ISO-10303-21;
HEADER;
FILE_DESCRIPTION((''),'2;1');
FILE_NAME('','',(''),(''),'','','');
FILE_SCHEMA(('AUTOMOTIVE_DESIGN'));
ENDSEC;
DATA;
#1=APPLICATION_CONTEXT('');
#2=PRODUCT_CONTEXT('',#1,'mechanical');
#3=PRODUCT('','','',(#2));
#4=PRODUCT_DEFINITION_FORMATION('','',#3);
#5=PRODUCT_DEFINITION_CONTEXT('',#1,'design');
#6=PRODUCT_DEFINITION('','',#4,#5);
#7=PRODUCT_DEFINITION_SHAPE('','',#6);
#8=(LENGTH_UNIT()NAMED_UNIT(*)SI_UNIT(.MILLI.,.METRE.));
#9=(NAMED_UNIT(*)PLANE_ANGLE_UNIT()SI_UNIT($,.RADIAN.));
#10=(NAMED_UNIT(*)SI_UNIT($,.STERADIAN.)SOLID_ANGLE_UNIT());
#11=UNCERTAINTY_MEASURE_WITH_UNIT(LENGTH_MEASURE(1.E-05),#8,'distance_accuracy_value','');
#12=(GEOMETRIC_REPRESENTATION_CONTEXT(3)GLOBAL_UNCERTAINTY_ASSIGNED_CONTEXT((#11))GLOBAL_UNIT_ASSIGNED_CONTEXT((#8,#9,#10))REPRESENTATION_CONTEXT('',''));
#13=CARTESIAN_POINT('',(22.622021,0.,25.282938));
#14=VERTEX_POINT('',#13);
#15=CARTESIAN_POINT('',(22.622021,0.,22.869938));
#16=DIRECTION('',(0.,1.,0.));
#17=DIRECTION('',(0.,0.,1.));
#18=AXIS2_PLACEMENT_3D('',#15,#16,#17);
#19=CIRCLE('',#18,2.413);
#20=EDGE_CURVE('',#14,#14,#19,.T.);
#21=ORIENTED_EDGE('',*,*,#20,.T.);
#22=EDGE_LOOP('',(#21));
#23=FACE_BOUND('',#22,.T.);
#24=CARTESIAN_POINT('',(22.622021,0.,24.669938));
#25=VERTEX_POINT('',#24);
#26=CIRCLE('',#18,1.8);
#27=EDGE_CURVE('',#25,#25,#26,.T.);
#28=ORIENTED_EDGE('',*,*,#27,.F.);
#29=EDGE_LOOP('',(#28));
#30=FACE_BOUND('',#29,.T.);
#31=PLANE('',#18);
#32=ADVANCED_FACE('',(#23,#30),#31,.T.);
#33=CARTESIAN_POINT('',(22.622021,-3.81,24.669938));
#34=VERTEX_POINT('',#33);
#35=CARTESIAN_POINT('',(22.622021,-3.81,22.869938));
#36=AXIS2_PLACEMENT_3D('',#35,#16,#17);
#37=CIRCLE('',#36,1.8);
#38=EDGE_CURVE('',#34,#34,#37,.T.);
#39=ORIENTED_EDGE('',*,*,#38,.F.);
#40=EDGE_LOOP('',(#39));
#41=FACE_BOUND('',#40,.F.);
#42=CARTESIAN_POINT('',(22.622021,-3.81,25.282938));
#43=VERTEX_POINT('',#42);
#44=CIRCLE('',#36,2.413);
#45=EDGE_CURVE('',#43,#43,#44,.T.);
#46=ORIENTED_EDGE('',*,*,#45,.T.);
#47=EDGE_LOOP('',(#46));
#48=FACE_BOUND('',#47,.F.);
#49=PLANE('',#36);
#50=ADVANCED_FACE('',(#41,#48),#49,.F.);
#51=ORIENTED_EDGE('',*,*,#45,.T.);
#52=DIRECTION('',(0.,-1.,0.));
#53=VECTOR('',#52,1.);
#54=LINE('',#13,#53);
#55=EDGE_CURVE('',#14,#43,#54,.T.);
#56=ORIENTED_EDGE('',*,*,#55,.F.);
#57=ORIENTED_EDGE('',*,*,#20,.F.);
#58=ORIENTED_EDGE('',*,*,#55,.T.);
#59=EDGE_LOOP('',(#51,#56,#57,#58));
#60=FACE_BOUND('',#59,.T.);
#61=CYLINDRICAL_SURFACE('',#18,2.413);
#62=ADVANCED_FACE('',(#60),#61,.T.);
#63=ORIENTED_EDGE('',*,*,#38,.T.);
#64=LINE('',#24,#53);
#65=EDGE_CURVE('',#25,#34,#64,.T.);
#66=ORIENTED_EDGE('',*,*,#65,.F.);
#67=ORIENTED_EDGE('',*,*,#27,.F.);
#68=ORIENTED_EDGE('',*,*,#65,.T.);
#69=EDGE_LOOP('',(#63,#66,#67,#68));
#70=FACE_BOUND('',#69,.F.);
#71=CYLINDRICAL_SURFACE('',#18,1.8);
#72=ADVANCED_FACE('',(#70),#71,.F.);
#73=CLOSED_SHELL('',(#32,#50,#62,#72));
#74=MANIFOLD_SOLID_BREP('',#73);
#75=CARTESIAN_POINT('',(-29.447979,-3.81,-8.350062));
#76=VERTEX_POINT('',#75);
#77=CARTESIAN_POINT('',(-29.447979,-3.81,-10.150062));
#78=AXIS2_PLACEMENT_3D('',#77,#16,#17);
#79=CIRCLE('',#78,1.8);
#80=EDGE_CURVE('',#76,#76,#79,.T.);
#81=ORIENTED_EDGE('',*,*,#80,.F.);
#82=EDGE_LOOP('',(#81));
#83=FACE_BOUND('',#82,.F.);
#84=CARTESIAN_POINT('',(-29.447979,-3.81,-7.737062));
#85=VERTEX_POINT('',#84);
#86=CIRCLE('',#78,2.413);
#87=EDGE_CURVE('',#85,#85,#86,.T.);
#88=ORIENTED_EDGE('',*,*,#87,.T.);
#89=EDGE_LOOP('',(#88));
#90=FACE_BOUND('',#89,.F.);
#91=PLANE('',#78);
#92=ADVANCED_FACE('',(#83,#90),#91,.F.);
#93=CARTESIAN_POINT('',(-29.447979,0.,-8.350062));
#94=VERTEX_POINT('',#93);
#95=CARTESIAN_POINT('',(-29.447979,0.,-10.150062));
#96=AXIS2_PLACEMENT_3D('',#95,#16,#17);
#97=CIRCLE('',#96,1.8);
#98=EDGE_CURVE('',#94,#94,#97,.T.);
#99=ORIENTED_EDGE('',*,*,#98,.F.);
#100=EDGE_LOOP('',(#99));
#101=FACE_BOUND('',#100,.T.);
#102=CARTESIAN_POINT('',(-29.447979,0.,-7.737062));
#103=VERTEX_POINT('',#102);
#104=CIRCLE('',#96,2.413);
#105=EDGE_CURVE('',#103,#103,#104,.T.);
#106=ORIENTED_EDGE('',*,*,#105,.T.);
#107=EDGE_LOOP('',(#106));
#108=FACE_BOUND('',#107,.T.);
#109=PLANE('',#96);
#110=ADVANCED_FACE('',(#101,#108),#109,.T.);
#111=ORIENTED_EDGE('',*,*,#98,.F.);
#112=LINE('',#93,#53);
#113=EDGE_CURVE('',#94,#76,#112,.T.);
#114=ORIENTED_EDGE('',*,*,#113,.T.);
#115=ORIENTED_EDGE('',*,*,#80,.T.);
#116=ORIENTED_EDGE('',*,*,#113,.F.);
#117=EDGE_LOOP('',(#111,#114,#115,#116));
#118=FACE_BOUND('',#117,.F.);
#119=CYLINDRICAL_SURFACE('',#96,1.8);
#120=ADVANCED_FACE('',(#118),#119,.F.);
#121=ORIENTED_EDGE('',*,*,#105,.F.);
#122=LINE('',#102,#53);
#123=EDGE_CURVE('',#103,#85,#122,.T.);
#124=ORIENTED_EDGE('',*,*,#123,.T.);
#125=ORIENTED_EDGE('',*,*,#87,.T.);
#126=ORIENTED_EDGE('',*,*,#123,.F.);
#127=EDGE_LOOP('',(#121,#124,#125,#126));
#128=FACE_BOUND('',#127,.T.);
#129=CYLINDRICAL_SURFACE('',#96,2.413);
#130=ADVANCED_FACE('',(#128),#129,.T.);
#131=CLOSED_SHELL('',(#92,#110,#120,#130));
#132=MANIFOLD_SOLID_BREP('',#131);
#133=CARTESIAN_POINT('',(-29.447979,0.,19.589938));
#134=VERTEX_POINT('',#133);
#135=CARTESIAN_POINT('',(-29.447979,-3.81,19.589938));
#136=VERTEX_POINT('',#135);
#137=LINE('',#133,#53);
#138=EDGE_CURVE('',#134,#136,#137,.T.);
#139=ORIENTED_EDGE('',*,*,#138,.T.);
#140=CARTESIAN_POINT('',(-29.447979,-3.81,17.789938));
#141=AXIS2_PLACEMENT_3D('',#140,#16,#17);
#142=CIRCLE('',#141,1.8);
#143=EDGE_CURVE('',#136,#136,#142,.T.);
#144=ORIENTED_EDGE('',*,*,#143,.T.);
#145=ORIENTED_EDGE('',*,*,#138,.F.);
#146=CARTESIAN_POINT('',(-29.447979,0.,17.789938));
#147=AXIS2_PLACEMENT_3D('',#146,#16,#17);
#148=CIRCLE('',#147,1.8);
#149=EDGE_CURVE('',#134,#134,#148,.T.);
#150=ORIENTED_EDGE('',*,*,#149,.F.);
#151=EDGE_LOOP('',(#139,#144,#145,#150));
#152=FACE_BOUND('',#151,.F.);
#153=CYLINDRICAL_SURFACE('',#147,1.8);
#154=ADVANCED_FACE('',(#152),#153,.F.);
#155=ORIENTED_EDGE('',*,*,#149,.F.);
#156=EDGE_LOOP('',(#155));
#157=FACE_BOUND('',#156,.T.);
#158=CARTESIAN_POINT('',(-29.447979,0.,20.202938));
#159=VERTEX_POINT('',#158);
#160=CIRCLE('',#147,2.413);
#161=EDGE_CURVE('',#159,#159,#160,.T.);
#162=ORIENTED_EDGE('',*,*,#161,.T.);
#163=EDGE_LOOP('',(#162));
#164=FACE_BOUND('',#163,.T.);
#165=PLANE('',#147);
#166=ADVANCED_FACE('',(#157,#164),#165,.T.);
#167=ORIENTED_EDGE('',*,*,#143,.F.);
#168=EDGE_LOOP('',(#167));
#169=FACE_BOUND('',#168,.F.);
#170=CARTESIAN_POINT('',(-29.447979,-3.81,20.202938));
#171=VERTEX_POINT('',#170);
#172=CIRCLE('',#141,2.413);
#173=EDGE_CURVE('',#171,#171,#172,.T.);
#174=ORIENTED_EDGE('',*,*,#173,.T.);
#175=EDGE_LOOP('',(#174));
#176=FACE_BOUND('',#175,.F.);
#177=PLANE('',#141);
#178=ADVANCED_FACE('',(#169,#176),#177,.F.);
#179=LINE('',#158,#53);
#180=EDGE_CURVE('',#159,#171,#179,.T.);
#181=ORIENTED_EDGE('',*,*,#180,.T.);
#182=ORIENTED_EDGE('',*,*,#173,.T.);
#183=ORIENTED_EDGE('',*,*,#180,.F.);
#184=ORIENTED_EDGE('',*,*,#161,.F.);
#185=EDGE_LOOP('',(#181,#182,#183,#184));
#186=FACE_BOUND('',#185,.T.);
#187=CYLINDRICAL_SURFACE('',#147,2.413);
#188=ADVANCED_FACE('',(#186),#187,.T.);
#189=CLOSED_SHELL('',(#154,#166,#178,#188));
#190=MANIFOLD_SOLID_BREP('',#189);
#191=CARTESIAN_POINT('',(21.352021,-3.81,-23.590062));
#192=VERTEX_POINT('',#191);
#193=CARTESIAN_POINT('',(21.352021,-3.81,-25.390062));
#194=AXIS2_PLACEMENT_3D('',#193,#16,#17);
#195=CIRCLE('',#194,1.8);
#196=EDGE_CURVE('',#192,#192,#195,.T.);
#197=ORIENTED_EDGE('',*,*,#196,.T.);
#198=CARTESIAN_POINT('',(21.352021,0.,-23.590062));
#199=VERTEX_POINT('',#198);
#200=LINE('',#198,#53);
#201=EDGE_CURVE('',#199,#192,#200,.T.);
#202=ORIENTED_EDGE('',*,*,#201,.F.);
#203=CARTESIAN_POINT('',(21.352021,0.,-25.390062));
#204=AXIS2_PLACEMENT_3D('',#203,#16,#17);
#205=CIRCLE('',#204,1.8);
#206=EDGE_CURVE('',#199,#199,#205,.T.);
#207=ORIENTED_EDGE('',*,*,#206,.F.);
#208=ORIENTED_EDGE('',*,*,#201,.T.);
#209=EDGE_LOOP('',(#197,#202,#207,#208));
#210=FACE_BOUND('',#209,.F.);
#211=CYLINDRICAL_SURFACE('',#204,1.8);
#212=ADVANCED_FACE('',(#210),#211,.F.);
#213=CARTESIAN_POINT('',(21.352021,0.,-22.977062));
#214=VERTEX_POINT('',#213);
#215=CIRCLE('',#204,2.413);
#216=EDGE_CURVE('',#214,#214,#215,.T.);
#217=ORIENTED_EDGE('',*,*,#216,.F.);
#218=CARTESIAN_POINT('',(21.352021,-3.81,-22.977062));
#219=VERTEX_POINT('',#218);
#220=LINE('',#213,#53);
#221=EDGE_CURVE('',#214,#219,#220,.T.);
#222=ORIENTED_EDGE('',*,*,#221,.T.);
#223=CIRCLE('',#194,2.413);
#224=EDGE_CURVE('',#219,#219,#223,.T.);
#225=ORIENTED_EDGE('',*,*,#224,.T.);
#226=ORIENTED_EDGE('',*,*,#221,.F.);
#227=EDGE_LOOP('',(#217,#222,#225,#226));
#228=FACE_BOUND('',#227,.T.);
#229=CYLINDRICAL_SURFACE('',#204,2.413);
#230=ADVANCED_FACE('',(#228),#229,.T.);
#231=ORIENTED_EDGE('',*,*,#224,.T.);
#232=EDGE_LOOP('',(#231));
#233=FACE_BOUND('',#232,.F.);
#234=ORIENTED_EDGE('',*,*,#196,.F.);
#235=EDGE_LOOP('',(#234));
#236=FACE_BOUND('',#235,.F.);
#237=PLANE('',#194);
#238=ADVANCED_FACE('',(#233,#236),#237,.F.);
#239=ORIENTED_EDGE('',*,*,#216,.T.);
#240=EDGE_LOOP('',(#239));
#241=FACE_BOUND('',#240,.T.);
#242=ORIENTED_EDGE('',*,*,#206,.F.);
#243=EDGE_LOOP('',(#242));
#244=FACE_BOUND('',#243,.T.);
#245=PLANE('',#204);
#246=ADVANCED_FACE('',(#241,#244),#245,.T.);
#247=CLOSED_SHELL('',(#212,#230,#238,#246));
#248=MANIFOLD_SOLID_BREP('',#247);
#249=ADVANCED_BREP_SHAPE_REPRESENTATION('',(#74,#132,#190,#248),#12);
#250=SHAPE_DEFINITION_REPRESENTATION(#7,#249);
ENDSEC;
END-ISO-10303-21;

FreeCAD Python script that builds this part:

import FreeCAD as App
import Part
import Sketcher
from FreeCAD import Vector
Q = App.Units.Quantity

doc = App.newDocument("Part")
body = doc.addObject("PartDesign::Body", "Body")

# Sketch on XZ plane
sketch1 = doc.addObject("Sketcher::SketchObject", "Sketch")
body.addObject(sketch1)
sketch1.AttachmentSupport = (doc.XZ_Plane, [""])
sketch1.MapMode = "FlatFace"
sketch1.addGeometry(Part.Circle(Vector(-29.4, 17.8, 0), Vector(0, 0, 1), 2.4), False)
sketch1.addGeometry(Part.Circle(Vector(-29.4, 17.8, 0), Vector(0, 0, 1), 1.8), False)
sketch1.addConstraint(Sketcher.Constraint("Coincident", 1, 3, 0, 3))
sketch1.addConstraint(Sketcher.Constraint("Diameter", 0, Q("0.19 in")))
sketch1.addConstraint(Sketcher.Constraint("Diameter", 1, 3.6))
sketch1.addConstraint(Sketcher.Constraint("DistanceX", 0, 3, -1, 1, 29.447979))
sketch1.addConstraint(Sketcher.Constraint("DistanceY", -1, 1, 0, 3, 17.789938))
pad1 = doc.addObject("PartDesign::Pad", "Pad")
body.addObject(pad1)
pad1.Profile = sketch1
pad1.Length = Q("0.15 in")
body2 = doc.addObject("PartDesign::Body", "Body001")

# Sketch on XZ plane
sketch2 = doc.addObject("Sketcher::SketchObject", "Sketch001")
body2.addObject(sketch2)
sketch2.AttachmentSupport = (doc.getObject("XZ_Plane001"), [""])
sketch2.MapMode = "FlatFace"
sketch2.addGeometry(Part.Circle(Vector(-29.4, -10.2, 0), Vector(0, 0, 1), 2.4), False)
sketch2.addGeometry(Part.Circle(Vector(-29.4, -10.2, 0), Vector(0, 0, 1), 1.8), False)
sketch2.addConstraint(Sketcher.Constraint("Coincident", 1, 3, 0, 3))
sketch2.addConstraint(Sketcher.Constraint("Diameter", 0, Q("0.19 in")))
sketch2.addConstraint(Sketcher.Constraint("Diameter", 1, 3.6))
sketch2.addConstraint(Sketcher.Constraint("DistanceX", 0, 3, -1, 1, 29.447979))
sketch2.addConstraint(Sketcher.Constraint("DistanceY", 0, 3, -1, 1, 10.150062))
pad2 = doc.addObject("PartDesign::Pad", "Pad001")
body2.addObject(pad2)
pad2.Profile = sketch2
pad2.Length = Q("0.15 in")
body3 = doc.addObject("PartDesign::Body", "Body002")

# Sketch on XZ plane
sketch3 = doc.addObject("Sketcher::SketchObject", "Sketch002")
body3.addObject(sketch3)
sketch3.AttachmentSupport = (doc.getObject("XZ_Plane002"), [""])
sketch3.MapMode = "FlatFace"
sketch3.addGeometry(Part.Circle(Vector(21.4, -25.4, 0), Vector(0, 0, 1), 2.4), False)
sketch3.addGeometry(Part.Circle(Vector(21.4, -25.4, 0), Vector(0, 0, 1), 1.8), False)
sketch3.addConstraint(Sketcher.Constraint("Coincident", 1, 3, 0, 3))
sketch3.addConstraint(Sketcher.Constraint("Diameter", 0, Q("0.19 in")))
sketch3.addConstraint(Sketcher.Constraint("Diameter", 1, 3.6))
sketch3.addConstraint(Sketcher.Constraint("DistanceX", -1, 1, 0, 3, 21.352021))
sketch3.addConstraint(Sketcher.Constraint("DistanceY", 0, 3, -1, 1, 25.390062))
pad3 = doc.addObject("PartDesign::Pad", "Pad002")
body3.addObject(pad3)
pad3.Profile = sketch3
pad3.Length = Q("0.15 in")
body4 = doc.addObject("PartDesign::Body", "Body003")

# Sketch on XZ plane
sketch4 = doc.addObject("Sketcher::SketchObject", "Sketch003")
body4.addObject(sketch4)
sketch4.AttachmentSupport = (doc.getObject("XZ_Plane003"), [""])
sketch4.MapMode = "FlatFace"
sketch4.addGeometry(Part.Circle(Vector(22.6, 22.9, 0), Vector(0, 0, 1), 2.4), False)
sketch4.addGeometry(Part.Circle(Vector(22.6, 22.9, 0), Vector(0, 0, 1), 1.8), False)
sketch4.addConstraint(Sketcher.Constraint("Coincident", 1, 3, 0, 3))
sketch4.addConstraint(Sketcher.Constraint("Diameter", 0, Q("0.19 in")))
sketch4.addConstraint(Sketcher.Constraint("Diameter", 1, 3.6))
sketch4.addConstraint(Sketcher.Constraint("DistanceX", -1, 1, 0, 3, 22.622021))
sketch4.addConstraint(Sketcher.Constraint("DistanceY", -1, 1, 0, 3, 22.869938))
pad4 = doc.addObject("PartDesign::Pad", "Pad003")
body4.addObject(pad4)
pad4.Profile = sketch4
pad4.Length = Q("0.15 in")

doc.recompute()
